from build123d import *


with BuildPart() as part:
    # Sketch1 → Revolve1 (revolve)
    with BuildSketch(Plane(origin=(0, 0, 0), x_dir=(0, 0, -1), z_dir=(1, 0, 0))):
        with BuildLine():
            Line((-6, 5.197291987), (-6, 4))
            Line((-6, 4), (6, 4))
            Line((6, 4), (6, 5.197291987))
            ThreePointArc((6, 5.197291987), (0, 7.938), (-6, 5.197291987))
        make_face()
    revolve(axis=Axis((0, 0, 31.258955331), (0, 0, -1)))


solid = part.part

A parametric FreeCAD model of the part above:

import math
import FreeCAD as App
import Part
import Sketcher
from FreeCAD import Vector
Q = App.Units.Quantity

doc = App.newDocument("Part")
body = doc.addObject("PartDesign::Body", "Body")

# Sketch on YZ plane
sketch1 = body.newObject("Sketcher::SketchObject", "Sketch")
sketch1.AttachmentSupport = (doc.getObject("YZ_Plane"), [""])
sketch1.MapMode = "FlatFace"
sketch1.addGeometry(Part.LineSegment(Vector(5.2, 6, 0), Vector(4, 6, 0)), False)
sketch1.addGeometry(Part.LineSegment(Vector(4, 6, 0), Vector(4, -6, 0)), False)
sketch1.addGeometry(Part.LineSegment(Vector(4, -6, 0), Vector(5.2, -6, 0)), False)
sketch1.addGeometry(Part.ArcOfCircle(Part.Circle(Vector(0, 0, 0), Vector(0, 0, 1), 7.9), math.radians(-49), math.radians(49)), False)
sketch1.addConstraint(Sketcher.Constraint("Coincident", 0, 2, 1, 1))
sketch1.addConstraint(Sketcher.Constraint("Coincident", 1, 2, 2, 1))
sketch1.addConstraint(Sketcher.Constraint("Coincident", 2, 2, 3, 1))
sketch1.addConstraint(Sketcher.Constraint("Coincident", 3, 2, 0, 1))
sketch1.addConstraint(Sketcher.Constraint("Horizontal", 0))
sketch1.addConstraint(Sketcher.Constraint("Vertical", 1))
sketch1.addConstraint(Sketcher.Constraint("Horizontal", 2))
sketch1.addConstraint(Sketcher.Constraint("Coincident", 3, 3, -1, 1))
sketch1.addConstraint(Sketcher.Constraint("Vertical", 2, 2, 3, 2))
sketch1.addConstraint(Sketcher.Constraint("DistanceY", 1, 2, 1, 1, Q("12 mm")))
sketch1.addConstraint(Sketcher.Constraint("DistanceX", -1, 1, 0, 2, Q("4 mm")))
sketch1.addConstraint(Sketcher.Constraint("Radius", 3, Q("7.938 mm")))
revolution = body.newObject("PartDesign::Revolution", "Revolution")
revolution.Profile = sketch1
revolution.ReferenceAxis = (sketch1, ["V_Axis"])
revolution.Angle = 360

doc.recompute()
